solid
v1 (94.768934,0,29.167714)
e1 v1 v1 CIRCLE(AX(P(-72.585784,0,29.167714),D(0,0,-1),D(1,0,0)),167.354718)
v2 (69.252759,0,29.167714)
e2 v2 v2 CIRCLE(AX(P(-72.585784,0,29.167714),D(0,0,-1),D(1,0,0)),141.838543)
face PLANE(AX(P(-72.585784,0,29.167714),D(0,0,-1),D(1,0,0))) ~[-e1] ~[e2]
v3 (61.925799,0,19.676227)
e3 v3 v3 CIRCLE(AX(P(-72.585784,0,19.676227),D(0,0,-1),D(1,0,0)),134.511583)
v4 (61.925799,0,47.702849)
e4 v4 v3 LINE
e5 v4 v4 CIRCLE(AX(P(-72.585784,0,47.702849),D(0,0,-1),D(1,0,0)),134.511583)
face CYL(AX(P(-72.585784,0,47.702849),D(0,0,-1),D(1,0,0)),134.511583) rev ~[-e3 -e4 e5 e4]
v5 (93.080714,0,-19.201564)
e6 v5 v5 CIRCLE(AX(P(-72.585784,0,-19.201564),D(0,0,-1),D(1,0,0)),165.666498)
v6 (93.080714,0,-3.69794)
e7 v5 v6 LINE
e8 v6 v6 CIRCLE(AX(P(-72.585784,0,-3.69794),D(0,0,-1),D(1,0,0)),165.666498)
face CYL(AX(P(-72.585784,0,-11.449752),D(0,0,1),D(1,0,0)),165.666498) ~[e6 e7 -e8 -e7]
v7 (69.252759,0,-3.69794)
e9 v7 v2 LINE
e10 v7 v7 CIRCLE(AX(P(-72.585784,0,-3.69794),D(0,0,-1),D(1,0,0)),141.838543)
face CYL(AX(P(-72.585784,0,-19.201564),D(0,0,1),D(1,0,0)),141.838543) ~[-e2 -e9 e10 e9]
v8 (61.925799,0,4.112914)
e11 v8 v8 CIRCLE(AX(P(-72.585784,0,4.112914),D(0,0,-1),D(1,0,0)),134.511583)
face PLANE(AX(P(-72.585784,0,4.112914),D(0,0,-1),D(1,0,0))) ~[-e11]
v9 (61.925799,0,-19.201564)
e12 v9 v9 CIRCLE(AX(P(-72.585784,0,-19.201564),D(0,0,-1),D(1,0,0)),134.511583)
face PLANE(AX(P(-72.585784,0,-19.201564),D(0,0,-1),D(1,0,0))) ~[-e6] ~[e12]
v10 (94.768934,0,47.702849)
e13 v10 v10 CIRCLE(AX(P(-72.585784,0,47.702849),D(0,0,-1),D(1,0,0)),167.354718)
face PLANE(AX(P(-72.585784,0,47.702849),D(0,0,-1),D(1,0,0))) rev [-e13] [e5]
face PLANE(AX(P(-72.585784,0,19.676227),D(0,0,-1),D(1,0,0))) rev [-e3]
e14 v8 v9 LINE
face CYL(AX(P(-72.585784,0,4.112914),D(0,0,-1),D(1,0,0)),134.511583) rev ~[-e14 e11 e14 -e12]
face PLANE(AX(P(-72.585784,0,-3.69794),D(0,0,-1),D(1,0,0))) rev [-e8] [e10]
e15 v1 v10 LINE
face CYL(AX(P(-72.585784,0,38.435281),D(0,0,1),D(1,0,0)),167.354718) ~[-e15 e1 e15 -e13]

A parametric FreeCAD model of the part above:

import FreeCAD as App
import Part
import Sketcher
from FreeCAD import Vector
Q = App.Units.Quantity

doc = App.newDocument("Part")
body = doc.addObject("PartDesign::Body", "Body")

# Sketch on XZ plane
sketch1 = body.newObject("Sketcher::SketchObject", "Sketch")
sketch1.AttachmentSupport = (doc.getObject("XZ_Plane"), [""])
sketch1.MapMode = "FlatFace"
sketch1.addGeometry([
    Part.LineSegment(Vector(-73, 20, 0), Vector(-73, 4, 0)),  # 0
    Part.LineSegment(Vector(-73, 4, 0), Vector(62, 4, 0)),  # 1
    Part.LineSegment(Vector(62, 4, 0), Vector(62, -19, 0)),  # 2
    Part.LineSegment(Vector(62, -19, 0), Vector(93, -19, 0)),  # 3
    Part.LineSegment(Vector(93, -19, 0), Vector(93, -4, 0)),  # 4
    Part.LineSegment(Vector(93, -4, 0), Vector(69, -4, 0)),  # 5
    Part.LineSegment(Vector(69, -4, 0), Vector(69, 29, 0)),  # 6
    Part.LineSegment(Vector(69, 29, 0), Vector(95, 29, 0)),  # 7
    Part.LineSegment(Vector(95, 29, 0), Vector(95, 48, 0)),  # 8
    Part.LineSegment(Vector(95, 48, 0), Vector(69, 48, 0)),  # 9
    Part.LineSegment(Vector(69, 48, 0), Vector(62, 48, 0)),  # 10
    Part.LineSegment(Vector(62, 48, 0), Vector(62, 20, 0)),  # 11
    Part.LineSegment(Vector(62, 20, 0), Vector(-73, 20, 0)),  # 12
], False)
sketch1.addGeometry(Part.LineSegment(Vector(-73, 48, 0), Vector(-73, -19, 0)), True)  # axis
sketch1.addConstraint([
    Sketcher.Constraint("Coincident", 0, 2, 1, 1),
    Sketcher.Constraint("Coincident", 1, 2, 2, 1),
    Sketcher.Constraint("Coincident", 2, 2, 3, 1),
    Sketcher.Constraint("Coincident", 3, 2, 4, 1),
    Sketcher.Constraint("Coincident", 4, 2, 5, 1),
    Sketcher.Constraint("Coincident", 5, 2, 6, 1),
    Sketcher.Constraint("Coincident", 6, 2, 7, 1),
    Sketcher.Constraint("Coincident", 7, 2, 8, 1),
    Sketcher.Constraint("Coincident", 8, 2, 9, 1),
    Sketcher.Constraint("Coincident", 9, 2, 10, 1),
    Sketcher.Constraint("Coincident", 10, 2, 11, 1),
    Sketcher.Constraint("Coincident", 11, 2, 12, 1),
    Sketcher.Constraint("Coincident", 12, 2, 0, 1),
    Sketcher.Constraint("Vertical", 0),
    Sketcher.Constraint("Horizontal", 1),
    Sketcher.Constraint("Vertical", 2),
    Sketcher.Constraint("Horizontal", 3),
    Sketcher.Constraint("Vertical", 4),
    Sketcher.Constraint("Horizontal", 5),
    Sketcher.Constraint("Vertical", 6),
    Sketcher.Constraint("Horizontal", 7),
    Sketcher.Constraint("Vertical", 8),
    Sketcher.Constraint("Horizontal", 9),
    Sketcher.Constraint("Horizontal", 10),
    Sketcher.Constraint("Vertical", 11),
    Sketcher.Constraint("Horizontal", 12),
    Sketcher.Constraint("Vertical", 13),
    Sketcher.Constraint("Horizontal", 10, 2, 13, 1),
    Sketcher.Constraint("Horizontal", 3, 2, 13, 2),
    Sketcher.Constraint("Vertical", 6, 2, 9, 2),
    Sketcher.Constraint("Vertical", 2, 2, 10, 2),
    Sketcher.Constraint("Vertical", 12, 2, 13, 1),
    Sketcher.Constraint("DistanceX", 10, 2, 10, 1, Q("7.326961 mm")),
    Sketcher.Constraint("DistanceY", 11, 2, 11, 1, Q("28.026622 mm")),
    Sketcher.Constraint("DistanceX", -1, 1, 1, 2, Q("61.925799 mm")),
    Sketcher.Constraint("DistanceX", 0, 2, 3, 2, Q("165.666498 mm")),
    Sketcher.Constraint("DistanceY", 1, 2, 6, 2, Q("25.054799 mm")),
    Sketcher.Constraint("DistanceX", 1, 1, 1, 2, Q("134.511583 mm")),
    Sketcher.Constraint("DistanceX", 7, 1, 7, 2, Q("25.516175 mm")),
    Sketcher.Constraint("DistanceY", 0, 2, 0, 1, Q("15.563313 mm")),
    Sketcher.Constraint("DistanceY", 2, 2, 2, 1, Q("23.314478 mm")),
    Sketcher.Constraint("DistanceY", 4, 1, 4, 2, Q("15.503623 mm")),
    Sketcher.Constraint("DistanceY", 4, 2, -1, 1, Q("3.69794 mm")),
])
revolution = body.newObject("PartDesign::Revolution", "Revolution")
revolution.Profile = sketch1
revolution.ReferenceAxis = (sketch1, ["Axis0"])
revolution.Angle = 360

doc.recompute()
